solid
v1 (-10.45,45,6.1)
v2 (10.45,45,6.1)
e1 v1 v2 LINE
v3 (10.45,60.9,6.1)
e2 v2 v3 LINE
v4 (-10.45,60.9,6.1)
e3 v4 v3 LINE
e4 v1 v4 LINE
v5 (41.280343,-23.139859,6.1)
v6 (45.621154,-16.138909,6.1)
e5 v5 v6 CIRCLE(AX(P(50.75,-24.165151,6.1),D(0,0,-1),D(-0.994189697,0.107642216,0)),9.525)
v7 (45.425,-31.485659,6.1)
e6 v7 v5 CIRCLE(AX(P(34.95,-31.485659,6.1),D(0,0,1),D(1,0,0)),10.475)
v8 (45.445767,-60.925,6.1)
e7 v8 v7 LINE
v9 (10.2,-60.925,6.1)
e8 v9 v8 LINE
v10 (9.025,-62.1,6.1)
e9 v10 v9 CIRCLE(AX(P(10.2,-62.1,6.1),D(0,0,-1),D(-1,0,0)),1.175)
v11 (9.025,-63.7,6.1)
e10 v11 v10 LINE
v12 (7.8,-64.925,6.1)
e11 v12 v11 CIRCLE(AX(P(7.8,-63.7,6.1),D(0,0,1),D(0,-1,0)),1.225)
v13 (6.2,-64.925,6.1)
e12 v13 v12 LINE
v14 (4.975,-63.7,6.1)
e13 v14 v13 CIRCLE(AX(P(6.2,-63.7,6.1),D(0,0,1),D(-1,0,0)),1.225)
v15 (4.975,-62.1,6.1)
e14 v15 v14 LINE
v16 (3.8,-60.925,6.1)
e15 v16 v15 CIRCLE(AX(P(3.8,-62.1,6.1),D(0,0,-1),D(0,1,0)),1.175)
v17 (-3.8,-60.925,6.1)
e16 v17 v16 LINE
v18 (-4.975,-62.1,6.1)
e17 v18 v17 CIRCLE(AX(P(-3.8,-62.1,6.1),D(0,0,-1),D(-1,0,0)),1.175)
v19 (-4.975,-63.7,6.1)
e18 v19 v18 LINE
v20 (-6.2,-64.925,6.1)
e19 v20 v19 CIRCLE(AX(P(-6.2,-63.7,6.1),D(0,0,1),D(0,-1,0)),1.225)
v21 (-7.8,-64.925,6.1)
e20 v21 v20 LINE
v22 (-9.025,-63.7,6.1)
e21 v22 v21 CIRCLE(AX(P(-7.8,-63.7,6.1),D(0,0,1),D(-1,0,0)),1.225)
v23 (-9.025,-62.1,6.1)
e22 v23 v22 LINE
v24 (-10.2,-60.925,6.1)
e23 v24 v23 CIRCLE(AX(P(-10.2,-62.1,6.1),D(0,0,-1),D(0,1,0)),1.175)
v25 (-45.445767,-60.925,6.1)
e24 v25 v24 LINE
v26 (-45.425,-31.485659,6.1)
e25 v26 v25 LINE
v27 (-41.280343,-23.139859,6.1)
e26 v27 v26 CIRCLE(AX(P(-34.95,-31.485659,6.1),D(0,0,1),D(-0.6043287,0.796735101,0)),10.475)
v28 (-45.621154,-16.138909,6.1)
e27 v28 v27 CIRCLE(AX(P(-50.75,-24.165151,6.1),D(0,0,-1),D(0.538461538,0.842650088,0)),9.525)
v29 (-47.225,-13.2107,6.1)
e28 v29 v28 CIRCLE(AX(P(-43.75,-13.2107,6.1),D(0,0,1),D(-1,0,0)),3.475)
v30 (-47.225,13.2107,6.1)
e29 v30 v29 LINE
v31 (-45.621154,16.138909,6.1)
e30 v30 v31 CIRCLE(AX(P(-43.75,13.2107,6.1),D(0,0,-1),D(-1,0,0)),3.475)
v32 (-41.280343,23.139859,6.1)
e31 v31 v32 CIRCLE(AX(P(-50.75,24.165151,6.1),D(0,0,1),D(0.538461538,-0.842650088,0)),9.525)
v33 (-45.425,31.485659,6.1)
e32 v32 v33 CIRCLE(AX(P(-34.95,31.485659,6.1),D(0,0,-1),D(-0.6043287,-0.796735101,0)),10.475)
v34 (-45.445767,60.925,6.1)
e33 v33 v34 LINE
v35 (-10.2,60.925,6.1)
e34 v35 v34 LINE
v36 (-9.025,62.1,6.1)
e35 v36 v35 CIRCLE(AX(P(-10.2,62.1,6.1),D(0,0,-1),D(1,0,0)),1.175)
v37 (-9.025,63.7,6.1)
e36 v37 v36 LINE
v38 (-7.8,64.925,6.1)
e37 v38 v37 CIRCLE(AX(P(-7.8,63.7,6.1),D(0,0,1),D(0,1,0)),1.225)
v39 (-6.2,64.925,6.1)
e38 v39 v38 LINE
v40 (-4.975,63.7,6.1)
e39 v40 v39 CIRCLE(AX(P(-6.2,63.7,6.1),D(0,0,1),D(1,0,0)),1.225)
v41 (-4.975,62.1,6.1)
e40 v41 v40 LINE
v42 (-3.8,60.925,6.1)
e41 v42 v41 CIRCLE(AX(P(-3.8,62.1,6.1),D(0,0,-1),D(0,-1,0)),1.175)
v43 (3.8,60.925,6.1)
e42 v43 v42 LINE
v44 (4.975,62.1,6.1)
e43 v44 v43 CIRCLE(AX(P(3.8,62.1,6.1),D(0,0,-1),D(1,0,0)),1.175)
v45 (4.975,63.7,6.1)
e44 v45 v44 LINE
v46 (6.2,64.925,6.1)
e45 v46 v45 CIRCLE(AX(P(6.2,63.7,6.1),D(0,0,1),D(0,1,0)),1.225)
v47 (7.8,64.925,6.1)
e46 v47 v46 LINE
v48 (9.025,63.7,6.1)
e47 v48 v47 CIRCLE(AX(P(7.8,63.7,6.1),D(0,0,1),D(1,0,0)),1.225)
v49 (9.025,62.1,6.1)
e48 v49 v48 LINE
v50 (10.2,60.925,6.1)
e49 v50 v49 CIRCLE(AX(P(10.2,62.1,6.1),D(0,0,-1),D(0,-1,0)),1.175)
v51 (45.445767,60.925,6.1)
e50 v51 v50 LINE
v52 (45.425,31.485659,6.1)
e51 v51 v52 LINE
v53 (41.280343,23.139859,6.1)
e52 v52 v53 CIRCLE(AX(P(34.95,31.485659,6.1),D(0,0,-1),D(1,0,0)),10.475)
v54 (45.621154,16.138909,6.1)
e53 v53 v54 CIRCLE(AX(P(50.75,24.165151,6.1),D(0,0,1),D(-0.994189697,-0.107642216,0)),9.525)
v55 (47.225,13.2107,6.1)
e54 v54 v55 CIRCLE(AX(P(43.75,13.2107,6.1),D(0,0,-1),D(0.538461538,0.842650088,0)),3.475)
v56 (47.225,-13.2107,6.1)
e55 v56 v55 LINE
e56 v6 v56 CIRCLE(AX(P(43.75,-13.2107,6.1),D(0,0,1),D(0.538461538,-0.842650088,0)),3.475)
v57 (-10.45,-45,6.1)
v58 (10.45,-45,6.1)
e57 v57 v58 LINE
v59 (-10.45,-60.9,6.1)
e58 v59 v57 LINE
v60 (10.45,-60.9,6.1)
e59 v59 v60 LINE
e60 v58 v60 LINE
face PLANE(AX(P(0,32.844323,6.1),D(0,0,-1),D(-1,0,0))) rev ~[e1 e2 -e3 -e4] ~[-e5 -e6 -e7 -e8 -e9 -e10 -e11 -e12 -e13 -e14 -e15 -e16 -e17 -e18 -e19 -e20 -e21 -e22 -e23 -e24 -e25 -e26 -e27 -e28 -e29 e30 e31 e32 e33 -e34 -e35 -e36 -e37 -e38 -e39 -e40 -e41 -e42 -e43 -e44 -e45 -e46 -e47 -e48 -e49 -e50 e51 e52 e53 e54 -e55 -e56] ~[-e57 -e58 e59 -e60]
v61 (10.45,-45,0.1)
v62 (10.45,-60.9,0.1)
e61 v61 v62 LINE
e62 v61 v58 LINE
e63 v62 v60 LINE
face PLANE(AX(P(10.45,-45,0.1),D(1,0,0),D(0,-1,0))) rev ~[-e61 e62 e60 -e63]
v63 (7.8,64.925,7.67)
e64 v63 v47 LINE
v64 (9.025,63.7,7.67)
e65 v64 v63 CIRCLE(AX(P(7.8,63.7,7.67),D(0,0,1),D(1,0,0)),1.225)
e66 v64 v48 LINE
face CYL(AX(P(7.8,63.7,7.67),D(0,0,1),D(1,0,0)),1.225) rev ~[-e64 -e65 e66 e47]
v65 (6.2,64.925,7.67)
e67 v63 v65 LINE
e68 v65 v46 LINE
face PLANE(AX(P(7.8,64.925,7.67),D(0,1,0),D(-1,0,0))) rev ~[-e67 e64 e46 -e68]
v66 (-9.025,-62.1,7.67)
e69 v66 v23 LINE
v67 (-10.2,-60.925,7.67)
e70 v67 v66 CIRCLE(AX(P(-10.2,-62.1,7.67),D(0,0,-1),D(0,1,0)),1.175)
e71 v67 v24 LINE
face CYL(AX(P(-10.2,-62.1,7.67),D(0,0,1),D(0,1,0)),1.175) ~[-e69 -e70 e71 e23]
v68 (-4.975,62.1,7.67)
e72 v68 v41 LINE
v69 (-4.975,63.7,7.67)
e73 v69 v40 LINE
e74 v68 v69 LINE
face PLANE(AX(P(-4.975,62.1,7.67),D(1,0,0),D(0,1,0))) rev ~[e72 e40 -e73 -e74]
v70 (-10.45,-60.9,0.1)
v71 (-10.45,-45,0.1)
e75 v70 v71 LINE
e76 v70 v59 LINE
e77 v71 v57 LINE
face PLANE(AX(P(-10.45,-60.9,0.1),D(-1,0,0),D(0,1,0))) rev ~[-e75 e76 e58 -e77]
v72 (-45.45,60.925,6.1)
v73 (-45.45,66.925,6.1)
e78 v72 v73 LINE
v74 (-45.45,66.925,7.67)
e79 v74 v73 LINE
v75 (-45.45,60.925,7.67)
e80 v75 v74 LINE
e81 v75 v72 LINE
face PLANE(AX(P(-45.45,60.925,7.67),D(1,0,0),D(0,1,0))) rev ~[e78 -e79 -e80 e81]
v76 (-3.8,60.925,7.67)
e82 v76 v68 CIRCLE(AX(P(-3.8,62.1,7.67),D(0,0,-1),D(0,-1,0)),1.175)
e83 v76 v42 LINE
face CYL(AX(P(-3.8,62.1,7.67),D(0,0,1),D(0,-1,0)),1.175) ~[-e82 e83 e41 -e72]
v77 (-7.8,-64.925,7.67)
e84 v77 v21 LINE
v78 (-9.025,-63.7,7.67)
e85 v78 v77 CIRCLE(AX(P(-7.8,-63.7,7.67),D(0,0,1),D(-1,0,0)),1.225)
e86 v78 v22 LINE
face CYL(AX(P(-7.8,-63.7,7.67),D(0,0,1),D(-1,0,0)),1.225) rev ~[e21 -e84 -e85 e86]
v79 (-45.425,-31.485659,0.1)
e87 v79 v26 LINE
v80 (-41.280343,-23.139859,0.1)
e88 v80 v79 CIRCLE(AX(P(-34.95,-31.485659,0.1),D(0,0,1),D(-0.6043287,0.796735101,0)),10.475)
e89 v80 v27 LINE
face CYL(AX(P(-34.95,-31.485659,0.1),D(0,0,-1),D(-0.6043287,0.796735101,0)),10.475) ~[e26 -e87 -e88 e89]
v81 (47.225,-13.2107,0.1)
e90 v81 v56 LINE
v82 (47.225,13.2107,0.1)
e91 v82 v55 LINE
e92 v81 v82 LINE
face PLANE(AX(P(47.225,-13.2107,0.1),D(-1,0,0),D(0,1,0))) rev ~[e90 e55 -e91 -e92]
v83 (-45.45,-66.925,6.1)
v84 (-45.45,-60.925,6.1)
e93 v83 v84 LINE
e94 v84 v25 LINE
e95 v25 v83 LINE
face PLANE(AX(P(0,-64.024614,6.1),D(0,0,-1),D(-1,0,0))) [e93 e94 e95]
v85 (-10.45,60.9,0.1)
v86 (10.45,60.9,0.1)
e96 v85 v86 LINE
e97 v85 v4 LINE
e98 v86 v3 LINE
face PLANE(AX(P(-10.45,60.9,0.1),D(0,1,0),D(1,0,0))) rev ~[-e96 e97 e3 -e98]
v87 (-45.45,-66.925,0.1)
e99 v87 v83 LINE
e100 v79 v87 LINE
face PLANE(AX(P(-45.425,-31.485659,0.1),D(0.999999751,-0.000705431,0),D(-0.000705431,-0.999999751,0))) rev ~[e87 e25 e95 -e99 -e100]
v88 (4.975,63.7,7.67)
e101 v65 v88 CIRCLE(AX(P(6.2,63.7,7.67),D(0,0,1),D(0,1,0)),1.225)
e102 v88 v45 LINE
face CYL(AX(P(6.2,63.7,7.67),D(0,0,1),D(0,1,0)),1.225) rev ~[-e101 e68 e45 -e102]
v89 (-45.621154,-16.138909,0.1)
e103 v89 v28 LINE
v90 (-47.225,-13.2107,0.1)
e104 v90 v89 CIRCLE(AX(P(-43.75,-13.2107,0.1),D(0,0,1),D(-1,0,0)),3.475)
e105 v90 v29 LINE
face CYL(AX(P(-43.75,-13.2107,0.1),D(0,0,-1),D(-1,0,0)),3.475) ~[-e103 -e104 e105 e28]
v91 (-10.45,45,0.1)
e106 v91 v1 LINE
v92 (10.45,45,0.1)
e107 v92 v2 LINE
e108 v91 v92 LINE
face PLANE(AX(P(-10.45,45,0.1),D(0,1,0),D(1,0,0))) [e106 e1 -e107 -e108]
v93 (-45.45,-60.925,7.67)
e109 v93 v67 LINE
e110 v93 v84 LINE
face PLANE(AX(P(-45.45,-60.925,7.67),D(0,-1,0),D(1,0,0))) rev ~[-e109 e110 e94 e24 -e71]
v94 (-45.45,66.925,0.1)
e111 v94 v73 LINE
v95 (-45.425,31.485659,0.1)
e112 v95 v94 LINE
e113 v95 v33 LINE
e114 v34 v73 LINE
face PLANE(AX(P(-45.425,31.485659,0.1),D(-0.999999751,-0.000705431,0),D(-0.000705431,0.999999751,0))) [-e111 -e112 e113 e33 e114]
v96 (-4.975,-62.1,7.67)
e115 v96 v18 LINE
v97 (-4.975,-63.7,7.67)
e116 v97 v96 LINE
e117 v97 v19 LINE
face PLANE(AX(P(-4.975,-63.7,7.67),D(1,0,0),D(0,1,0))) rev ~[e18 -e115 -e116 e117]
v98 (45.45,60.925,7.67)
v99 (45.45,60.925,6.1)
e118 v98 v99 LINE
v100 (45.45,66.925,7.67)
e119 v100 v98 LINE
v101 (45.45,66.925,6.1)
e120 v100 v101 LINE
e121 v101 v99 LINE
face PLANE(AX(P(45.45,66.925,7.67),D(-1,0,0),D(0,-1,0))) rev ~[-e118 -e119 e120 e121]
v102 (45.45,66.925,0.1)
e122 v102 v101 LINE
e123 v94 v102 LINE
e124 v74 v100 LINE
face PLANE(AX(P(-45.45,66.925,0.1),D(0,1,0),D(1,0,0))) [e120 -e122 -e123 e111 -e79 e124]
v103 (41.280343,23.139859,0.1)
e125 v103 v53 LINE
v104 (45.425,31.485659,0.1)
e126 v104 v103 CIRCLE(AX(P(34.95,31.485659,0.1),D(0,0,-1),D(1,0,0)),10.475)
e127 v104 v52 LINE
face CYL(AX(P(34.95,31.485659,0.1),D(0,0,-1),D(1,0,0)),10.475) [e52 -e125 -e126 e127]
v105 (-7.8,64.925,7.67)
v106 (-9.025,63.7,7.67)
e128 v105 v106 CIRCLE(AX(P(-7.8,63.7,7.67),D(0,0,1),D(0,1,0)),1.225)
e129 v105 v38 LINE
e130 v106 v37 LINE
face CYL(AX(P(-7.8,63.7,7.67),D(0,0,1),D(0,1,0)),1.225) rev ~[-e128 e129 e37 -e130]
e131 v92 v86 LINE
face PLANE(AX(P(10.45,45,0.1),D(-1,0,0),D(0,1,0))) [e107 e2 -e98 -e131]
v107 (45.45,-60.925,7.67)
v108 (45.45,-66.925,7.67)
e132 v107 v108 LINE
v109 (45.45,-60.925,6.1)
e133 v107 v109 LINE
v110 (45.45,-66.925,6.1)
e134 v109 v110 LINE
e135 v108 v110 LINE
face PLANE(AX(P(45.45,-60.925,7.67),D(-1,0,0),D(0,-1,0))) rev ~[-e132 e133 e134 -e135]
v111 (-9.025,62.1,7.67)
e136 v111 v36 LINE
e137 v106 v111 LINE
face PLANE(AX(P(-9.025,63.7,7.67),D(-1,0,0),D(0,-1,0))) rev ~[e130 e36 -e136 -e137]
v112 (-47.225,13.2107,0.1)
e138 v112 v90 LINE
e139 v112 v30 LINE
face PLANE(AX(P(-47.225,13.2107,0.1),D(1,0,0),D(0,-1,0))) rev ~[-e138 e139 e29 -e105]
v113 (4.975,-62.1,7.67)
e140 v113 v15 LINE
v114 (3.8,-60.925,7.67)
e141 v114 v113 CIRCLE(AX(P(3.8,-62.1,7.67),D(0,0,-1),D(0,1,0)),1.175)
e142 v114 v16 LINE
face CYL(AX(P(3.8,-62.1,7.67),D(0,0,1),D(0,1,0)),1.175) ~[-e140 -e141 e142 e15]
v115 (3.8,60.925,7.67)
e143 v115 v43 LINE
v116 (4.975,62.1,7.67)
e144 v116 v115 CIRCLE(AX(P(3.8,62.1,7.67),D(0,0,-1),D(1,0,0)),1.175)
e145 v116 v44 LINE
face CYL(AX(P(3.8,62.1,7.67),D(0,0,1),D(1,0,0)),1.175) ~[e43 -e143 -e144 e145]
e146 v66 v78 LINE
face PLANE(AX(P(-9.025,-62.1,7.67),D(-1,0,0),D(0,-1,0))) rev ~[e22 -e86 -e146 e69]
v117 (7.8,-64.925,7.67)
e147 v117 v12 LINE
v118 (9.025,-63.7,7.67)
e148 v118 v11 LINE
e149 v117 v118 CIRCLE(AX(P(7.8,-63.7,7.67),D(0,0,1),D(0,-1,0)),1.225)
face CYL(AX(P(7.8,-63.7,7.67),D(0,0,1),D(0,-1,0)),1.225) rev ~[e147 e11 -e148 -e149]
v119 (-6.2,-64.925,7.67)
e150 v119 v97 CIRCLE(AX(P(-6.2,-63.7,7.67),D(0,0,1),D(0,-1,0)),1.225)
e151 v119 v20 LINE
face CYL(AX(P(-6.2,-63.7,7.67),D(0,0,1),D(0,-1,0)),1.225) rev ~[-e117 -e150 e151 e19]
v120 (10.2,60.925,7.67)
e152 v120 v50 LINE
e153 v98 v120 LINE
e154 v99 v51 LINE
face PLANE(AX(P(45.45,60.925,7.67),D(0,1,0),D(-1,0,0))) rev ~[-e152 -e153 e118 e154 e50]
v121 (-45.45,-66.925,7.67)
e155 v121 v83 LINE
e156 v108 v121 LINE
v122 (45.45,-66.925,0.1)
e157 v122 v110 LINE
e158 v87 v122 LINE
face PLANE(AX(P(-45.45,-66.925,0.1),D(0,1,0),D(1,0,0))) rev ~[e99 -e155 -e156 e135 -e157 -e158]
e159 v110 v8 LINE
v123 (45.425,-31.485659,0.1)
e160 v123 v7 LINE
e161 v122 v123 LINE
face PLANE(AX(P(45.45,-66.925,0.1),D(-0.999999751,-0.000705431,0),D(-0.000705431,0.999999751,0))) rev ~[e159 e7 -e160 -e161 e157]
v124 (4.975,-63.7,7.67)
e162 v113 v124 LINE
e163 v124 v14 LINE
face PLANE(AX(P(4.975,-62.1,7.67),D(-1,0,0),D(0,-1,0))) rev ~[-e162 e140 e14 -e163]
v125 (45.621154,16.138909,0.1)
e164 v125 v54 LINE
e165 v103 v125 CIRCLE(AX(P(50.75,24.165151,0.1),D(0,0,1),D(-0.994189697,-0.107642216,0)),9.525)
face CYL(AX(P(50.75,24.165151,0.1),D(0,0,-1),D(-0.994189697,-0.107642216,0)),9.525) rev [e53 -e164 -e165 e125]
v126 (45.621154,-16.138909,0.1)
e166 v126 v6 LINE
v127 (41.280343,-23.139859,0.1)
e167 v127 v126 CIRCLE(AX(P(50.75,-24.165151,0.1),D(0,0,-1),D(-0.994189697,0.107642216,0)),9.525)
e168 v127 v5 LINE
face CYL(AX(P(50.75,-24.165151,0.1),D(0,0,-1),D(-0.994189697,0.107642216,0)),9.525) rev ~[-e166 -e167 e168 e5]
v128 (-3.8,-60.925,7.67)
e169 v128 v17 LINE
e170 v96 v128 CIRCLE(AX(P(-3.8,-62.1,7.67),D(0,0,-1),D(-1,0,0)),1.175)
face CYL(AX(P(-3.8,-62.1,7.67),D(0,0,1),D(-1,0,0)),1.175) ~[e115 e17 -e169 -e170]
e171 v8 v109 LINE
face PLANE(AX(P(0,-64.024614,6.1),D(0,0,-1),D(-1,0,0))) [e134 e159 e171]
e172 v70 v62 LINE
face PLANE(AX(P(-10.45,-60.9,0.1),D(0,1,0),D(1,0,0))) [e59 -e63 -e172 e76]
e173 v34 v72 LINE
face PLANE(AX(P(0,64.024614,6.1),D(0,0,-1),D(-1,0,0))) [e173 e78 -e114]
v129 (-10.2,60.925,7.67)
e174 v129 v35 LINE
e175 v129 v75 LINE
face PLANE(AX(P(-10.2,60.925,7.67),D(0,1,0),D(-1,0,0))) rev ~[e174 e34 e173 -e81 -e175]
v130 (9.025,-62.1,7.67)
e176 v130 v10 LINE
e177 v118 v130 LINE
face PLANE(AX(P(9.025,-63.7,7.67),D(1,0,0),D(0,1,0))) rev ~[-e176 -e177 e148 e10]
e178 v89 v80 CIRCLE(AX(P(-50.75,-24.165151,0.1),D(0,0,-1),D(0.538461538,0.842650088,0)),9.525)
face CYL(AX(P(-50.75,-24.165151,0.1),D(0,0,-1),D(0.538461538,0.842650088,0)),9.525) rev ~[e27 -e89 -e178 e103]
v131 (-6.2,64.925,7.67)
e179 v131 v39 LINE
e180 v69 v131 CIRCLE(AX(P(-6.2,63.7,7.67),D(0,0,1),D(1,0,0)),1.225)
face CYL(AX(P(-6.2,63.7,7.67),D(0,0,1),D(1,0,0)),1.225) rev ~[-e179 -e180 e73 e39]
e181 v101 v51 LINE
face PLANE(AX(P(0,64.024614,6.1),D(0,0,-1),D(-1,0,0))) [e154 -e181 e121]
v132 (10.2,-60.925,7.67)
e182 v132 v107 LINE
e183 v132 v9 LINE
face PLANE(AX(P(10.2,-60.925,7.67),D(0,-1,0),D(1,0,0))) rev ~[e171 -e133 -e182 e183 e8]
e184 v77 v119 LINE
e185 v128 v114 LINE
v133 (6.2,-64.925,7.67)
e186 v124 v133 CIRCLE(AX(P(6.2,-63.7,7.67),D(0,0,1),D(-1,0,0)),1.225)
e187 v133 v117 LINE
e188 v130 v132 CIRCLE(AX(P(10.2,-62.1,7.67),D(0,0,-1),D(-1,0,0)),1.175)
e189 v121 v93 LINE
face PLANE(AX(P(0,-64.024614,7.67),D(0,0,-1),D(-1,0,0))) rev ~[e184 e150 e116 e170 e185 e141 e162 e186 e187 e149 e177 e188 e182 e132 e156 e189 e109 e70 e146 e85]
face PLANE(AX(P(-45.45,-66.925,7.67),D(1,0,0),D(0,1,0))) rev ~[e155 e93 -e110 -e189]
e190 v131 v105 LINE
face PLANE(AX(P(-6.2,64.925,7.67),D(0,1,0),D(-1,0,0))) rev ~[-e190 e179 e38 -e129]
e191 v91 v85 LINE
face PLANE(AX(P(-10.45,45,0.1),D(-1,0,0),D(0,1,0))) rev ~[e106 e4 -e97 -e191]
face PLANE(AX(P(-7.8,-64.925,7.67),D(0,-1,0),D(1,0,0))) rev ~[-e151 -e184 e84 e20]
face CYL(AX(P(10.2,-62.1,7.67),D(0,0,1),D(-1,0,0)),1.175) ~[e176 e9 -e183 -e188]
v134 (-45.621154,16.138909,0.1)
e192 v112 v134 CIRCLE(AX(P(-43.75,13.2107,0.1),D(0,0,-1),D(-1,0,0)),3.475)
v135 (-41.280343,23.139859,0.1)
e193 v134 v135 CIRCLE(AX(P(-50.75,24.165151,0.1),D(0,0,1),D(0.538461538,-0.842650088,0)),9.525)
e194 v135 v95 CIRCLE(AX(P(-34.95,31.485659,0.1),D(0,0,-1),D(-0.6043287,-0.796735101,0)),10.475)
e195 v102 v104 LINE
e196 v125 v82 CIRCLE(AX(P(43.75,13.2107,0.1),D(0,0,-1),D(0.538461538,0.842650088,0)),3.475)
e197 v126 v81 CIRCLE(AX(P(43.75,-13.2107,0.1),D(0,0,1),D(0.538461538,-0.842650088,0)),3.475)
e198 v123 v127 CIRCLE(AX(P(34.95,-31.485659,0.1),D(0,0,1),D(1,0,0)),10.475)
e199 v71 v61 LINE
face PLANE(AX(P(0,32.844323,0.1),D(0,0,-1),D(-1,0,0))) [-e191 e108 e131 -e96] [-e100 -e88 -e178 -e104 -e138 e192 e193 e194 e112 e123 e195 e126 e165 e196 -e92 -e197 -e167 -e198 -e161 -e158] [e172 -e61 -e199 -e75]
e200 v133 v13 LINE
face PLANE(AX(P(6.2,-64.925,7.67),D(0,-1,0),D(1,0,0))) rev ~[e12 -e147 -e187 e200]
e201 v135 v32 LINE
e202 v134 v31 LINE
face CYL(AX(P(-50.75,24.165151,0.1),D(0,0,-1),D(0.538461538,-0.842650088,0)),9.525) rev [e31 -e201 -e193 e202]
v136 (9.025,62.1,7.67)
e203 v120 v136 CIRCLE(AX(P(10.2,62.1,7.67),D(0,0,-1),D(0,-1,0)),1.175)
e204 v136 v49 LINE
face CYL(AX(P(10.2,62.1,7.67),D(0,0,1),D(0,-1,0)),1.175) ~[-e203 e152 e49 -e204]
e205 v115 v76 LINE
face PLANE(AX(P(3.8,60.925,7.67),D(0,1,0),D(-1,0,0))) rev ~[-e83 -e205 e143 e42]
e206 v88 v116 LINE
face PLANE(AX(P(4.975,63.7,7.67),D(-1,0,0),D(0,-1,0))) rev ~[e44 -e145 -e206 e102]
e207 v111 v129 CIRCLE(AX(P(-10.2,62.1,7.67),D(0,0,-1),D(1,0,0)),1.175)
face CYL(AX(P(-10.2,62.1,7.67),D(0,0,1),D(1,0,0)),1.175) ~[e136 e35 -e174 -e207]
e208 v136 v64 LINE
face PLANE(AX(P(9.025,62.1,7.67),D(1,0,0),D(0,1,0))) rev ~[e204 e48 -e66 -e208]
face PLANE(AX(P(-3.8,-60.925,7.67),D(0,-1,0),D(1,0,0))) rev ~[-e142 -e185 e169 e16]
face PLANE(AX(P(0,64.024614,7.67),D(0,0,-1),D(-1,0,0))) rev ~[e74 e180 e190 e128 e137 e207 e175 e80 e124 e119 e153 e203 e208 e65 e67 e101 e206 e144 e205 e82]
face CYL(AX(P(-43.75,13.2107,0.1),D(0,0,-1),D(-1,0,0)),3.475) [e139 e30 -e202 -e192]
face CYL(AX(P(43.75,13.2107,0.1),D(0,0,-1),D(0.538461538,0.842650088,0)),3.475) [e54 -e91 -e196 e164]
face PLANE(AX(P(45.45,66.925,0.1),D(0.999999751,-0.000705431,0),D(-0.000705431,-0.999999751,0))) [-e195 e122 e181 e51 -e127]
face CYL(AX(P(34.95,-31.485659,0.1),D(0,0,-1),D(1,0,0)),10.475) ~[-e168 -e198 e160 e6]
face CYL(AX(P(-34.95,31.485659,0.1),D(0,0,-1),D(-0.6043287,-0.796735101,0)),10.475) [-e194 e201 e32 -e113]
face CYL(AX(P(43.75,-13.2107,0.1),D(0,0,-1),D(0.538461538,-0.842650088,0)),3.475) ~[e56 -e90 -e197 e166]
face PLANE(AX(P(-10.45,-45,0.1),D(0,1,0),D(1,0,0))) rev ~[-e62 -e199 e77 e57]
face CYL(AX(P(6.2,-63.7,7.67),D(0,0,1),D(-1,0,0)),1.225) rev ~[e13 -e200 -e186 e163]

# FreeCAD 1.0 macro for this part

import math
import FreeCAD as App
import Part
import Sketcher
Q = App.Units.Quantity


def add_polygon(sketch, points):
    """Adds a closed chain of lines whose ends are joined by coincident constraints."""
    first, n = sketch.GeometryCount, len(points)
    for a, b in zip(points, points[1:] + points[:1]):
        sketch.addGeometry(Part.LineSegment(App.Vector(*a, 0), App.Vector(*b, 0)), False)
    for i in range(n):
        sketch.addConstraint(Sketcher.Constraint("Coincident", first + i, 2, first + (i + 1) % n, 1))

doc = App.newDocument("Part")
params = doc.addObject("Spreadsheet::Sheet", "Params")
for row, (alias, value) in enumerate([
    ("sketch1_height", "6 mm"),
    ("sketch1_width", "1.6 mm"),
    ("sketch1_width2", "7.6 mm"),
    ("sketch1_width3", "90.9 mm"),
    ("pad1_length", "1.57 mm"),
    ("sketch2_height", "6 mm"),
    ("sketch2_width", "1.6 mm"),
    ("sketch2_width2", "7.6 mm"),
    ("sketch2_width3", "90.9 mm"),
    ("pad2_length", "1.57 mm"),
    ("sketch3_width", "90.9 mm"),
    ("sketch3_width2", "20.9 mm"),
    ("sketch3_height", "15.9 mm"),
    ("pad3_length", "6 mm"),
], start=1):
    params.set(f"A{row}", alias)
    params.set(f"B{row}", "=" + value)
    params.setAlias(f"B{row}", alias)

body = doc.addObject("PartDesign::Body", "Body")

# Sketch on XY plane
sketch1 = body.newObject("Sketcher::SketchObject", "Sketch")
sketch1.AttachmentSupport = (doc.getObject("XY_Plane"), [""])
sketch1.MapMode = "FlatFace"
sketch1.AttachmentOffset = App.Placement(App.Vector(0, 0, 7.67), App.Rotation())
sketch1.addGeometry(Part.LineSegment(App.Vector(-45.5, 60.9, 0), App.Vector(-10.2, 60.9, 0)), False)
sketch1.addGeometry(Part.ArcOfCircle(Part.Circle(App.Vector(-10.2, 62.1, 0), App.Vector(0, 0, 1), 1.2), math.radians(-90), math.radians(0)), False)
sketch1.addGeometry(Part.LineSegment(App.Vector(-9, 62.1, 0), App.Vector(-9, 63.7, 0)), False)
sketch1.addGeometry(Part.ArcOfCircle(Part.Circle(App.Vector(-7.8, 63.7, 0), App.Vector(0, 0, 1), 1.2), math.radians(90), math.radians(180)), False)
sketch1.addGeometry(Part.LineSegment(App.Vector(-7.8, 64.9, 0), App.Vector(-6.2, 64.9, 0)), False)
sketch1.addGeometry(Part.ArcOfCircle(Part.Circle(App.Vector(-6.2, 63.7, 0), App.Vector(0, 0, 1), 1.2), math.radians(0), math.radians(90)), False)
sketch1.addGeometry(Part.LineSegment(App.Vector(-5, 63.7, 0), App.Vector(-5, 62.1, 0)), False)
sketch1.addGeometry(Part.ArcOfCircle(Part.Circle(App.Vector(-3.8, 62.1, 0), App.Vector(0, 0, 1), 1.2), math.radians(180), math.radians(270)), False)
sketch1.addGeometry(Part.LineSegment(App.Vector(-3.8, 60.9, 0), App.Vector(3.8, 60.9, 0)), False)
sketch1.addGeometry(Part.ArcOfCircle(Part.Circle(App.Vector(3.8, 62.1, 0), App.Vector(0, 0, 1), 1.2), math.radians(-90), math.radians(0)), False)
sketch1.addGeometry(Part.LineSegment(App.Vector(5, 62.1, 0), App.Vector(5, 63.7, 0)), False)
sketch1.addGeometry(Part.ArcOfCircle(Part.Circle(App.Vector(6.2, 63.7, 0), App.Vector(0, 0, 1), 1.2), math.radians(90), math.radians(180)), False)
sketch1.addGeometry(Part.LineSegment(App.Vector(6.2, 64.9, 0), App.Vector(7.8, 64.9, 0)), False)
sketch1.addGeometry(Part.ArcOfCircle(Part.Circle(App.Vector(7.8, 63.7, 0), App.Vector(0, 0, 1), 1.2), math.radians(0), math.radians(90)), False)
sketch1.addGeometry(Part.LineSegment(App.Vector(9, 63.7, 0), App.Vector(9, 62.1, 0)), False)
sketch1.addGeometry(Part.ArcOfCircle(Part.Circle(App.Vector(10.2, 62.1, 0), App.Vector(0, 0, 1), 1.2), math.radians(180), math.radians(270)), False)
sketch1.addGeometry(Part.LineSegment(App.Vector(10.2, 60.9, 0), App.Vector(45.5, 60.9, 0)), False)
sketch1.addGeometry(Part.LineSegment(App.Vector(45.5, 60.9, 0), App.Vector(45.5, 66.9, 0)), False)
sketch1.addGeometry(Part.LineSegment(App.Vector(45.5, 66.9, 0), App.Vector(-45.5, 66.9, 0)), False)
sketch1.addGeometry(Part.LineSegment(App.Vector(-45.5, 66.9, 0), App.Vector(-45.5, 60.9, 0)), False)
sketch1.addConstraint(Sketcher.Constraint("Tangent", 0, 2, 1, 1))
sketch1.addConstraint(Sketcher.Constraint("Tangent", 1, 2, 2, 1))
sketch1.addConstraint(Sketcher.Constraint("Tangent", 2, 2, 3, 2))
sketch1.addConstraint(Sketcher.Constraint("Tangent", 3, 1, 4, 1))
sketch1.addConstraint(Sketcher.Constraint("Tangent", 4, 2, 5, 2))
sketch1.addConstraint(Sketcher.Constraint("Tangent", 5, 1, 6, 1))
sketch1.addConstraint(Sketcher.Constraint("Tangent", 6, 2, 7, 1))
sketch1.addConstraint(Sketcher.Constraint("Tangent", 7, 2, 8, 1))
sketch1.addConstraint(Sketcher.Constraint("Tangent", 8, 2, 9, 1))
sketch1.addConstraint(Sketcher.Constraint("Tangent", 9, 2, 10, 1))
sketch1.addConstraint(Sketcher.Constraint("Tangent", 10, 2, 11, 2))
sketch1.addConstraint(Sketcher.Constraint("Tangent", 11, 1, 12, 1))
sketch1.addConstraint(Sketcher.Constraint("Tangent", 12, 2, 13, 2))
sketch1.addConstraint(Sketcher.Constraint("Tangent", 13, 1, 14, 1))
sketch1.addConstraint(Sketcher.Constraint("Tangent", 14, 2, 15, 1))
sketch1.addConstraint(Sketcher.Constraint("Tangent", 15, 2, 16, 1))
sketch1.addConstraint(Sketcher.Constraint("Coincident", 16, 2, 17, 1))
sketch1.addConstraint(Sketcher.Constraint("Coincident", 17, 2, 18, 1))
sketch1.addConstraint(Sketcher.Constraint("Coincident", 18, 2, 19, 1))
sketch1.addConstraint(Sketcher.Constraint("Coincident", 19, 2, 0, 1))
sketch1.addConstraint(Sketcher.Constraint("Horizontal", 0))
sketch1.addConstraint(Sketcher.Constraint("Vertical", 2))
sketch1.addConstraint(Sketcher.Constraint("Horizontal", 4))
sketch1.addConstraint(Sketcher.Constraint("Vertical", 6))
sketch1.addConstraint(Sketcher.Constraint("Horizontal", 8))
sketch1.addConstraint(Sketcher.Constraint("Vertical", 10))
sketch1.addConstraint(Sketcher.Constraint("Horizontal", 12))
sketch1.addConstraint(Sketcher.Constraint("Vertical", 14))
sketch1.addConstraint(Sketcher.Constraint("Horizontal", 16))
sketch1.addConstraint(Sketcher.Constraint("Vertical", 17))
sketch1.addConstraint(Sketcher.Constraint("Horizontal", 18))
sketch1.addConstraint(Sketcher.Constraint("Vertical", 19))
sketch1.addConstraint(Sketcher.Constraint("Equal", 3, 5))
sketch1.addConstraint(Sketcher.Constraint("Equal", 1, 7))
sketch1.addConstraint(Sketcher.Constraint("Equal", 7, 9))
sketch1.addConstraint(Sketcher.Constraint("Equal", 5, 11))
sketch1.addConstraint(Sketcher.Constraint("Equal", 11, 13))
sketch1.addConstraint(Sketcher.Constraint("Equal", 9, 15))
sketch1.addConstraint(Sketcher.Constraint("Symmetric", 5, 3, 11, 3, -2))
sketch1.addConstraint(Sketcher.Constraint("Symmetric", 1, 3, 15, 3, -2))
sketch1.addConstraint(Sketcher.Constraint("Horizontal", 1, 3, 7, 3))
sketch1.addConstraint(Sketcher.Constraint("Equal", 0, 16))
sketch1.addConstraint(Sketcher.Constraint("Equal", 12, 2))
sketch1.addConstraint(Sketcher.Constraint("DistanceY", 17, 1, 17, 2, Q("6 mm")))
sketch1.addConstraint(Sketcher.Constraint("DistanceX", 4, 1, 4, 2, Q("1.6 mm")))
sketch1.addConstraint(Sketcher.Constraint("DistanceX", 8, 1, 8, 2, Q("7.6 mm")))
sketch1.addConstraint(Sketcher.Constraint("DistanceX", 18, 2, 18, 1, Q("90.9 mm")))
sketch1.addConstraint(Sketcher.Constraint("Radius", 1, Q("1.175 mm")))
sketch1.addConstraint(Sketcher.Constraint("Radius", 3, Q("1.225 mm")))
sketch1.addConstraint(Sketcher.Constraint("DistanceY", -1, 1, 1, 3, Q("62.1 mm")))
sketch1.setExpression("Constraints[43]", "Params.sketch1_height")
sketch1.setExpression("Constraints[44]", "Params.sketch1_width")
sketch1.setExpression("Constraints[45]", "Params.sketch1_width2")
sketch1.setExpression("Constraints[46]", "Params.sketch1_width3")
pad1 = body.newObject("PartDesign::Pad", "Pad")
pad1.Profile = sketch1
pad1.setExpression("Length", "Params.pad1_length")
pad1.Reversed = True
body2 = doc.addObject("PartDesign::Body", "Body001")

# Sketch on XY plane
sketch2 = body2.newObject("Sketcher::SketchObject", "Sketch001")
sketch2.AttachmentSupport = (doc.getObject("XY_Plane001"), [""])
sketch2.MapMode = "FlatFace"
sketch2.AttachmentOffset = App.Placement(App.Vector(0, 0, 7.67), App.Rotation())
sketch2.addGeometry(Part.LineSegment(App.Vector(45.5, -60.9, 0), App.Vector(10.2, -60.9, 0)), False)
sketch2.addGeometry(Part.ArcOfCircle(Part.Circle(App.Vector(10.2, -62.1, 0), App.Vector(0, 0, 1), 1.2), math.radians(90), math.radians(180)), False)
sketch2.addGeometry(Part.LineSegment(App.Vector(9, -62.1, 0), App.Vector(9, -63.7, 0)), False)
sketch2.addGeometry(Part.ArcOfCircle(Part.Circle(App.Vector(7.8, -63.7, 0), App.Vector(0, 0, 1), 1.2), math.radians(-90), math.radians(0)), False)
sketch2.addGeometry(Part.LineSegment(App.Vector(7.8, -64.9, 0), App.Vector(6.2, -64.9, 0)), False)
sketch2.addGeometry(Part.ArcOfCircle(Part.Circle(App.Vector(6.2, -63.7, 0), App.Vector(0, 0, 1), 1.2), math.radians(180), math.radians(270)), False)
sketch2.addGeometry(Part.LineSegment(App.Vector(5, -63.7, 0), App.Vector(5, -62.1, 0)), False)
sketch2.addGeometry(Part.ArcOfCircle(Part.Circle(App.Vector(3.8, -62.1, 0), App.Vector(0, 0, 1), 1.2), math.radians(0), math.radians(90)), False)
sketch2.addGeometry(Part.LineSegment(App.Vector(3.8, -60.9, 0), App.Vector(-3.8, -60.9, 0)), False)
sketch2.addGeometry(Part.ArcOfCircle(Part.Circle(App.Vector(-3.8, -62.1, 0), App.Vector(0, 0, 1), 1.2), math.radians(90), math.radians(180)), False)
sketch2.addGeometry(Part.LineSegment(App.Vector(-5, -62.1, 0), App.Vector(-5, -63.7, 0)), False)
sketch2.addGeometry(Part.ArcOfCircle(Part.Circle(App.Vector(-6.2, -63.7, 0), App.Vector(0, 0, 1), 1.2), math.radians(-90), math.radians(0)), False)
sketch2.addGeometry(Part.LineSegment(App.Vector(-6.2, -64.9, 0), App.Vector(-7.8, -64.9, 0)), False)
sketch2.addGeometry(Part.ArcOfCircle(Part.Circle(App.Vector(-7.8, -63.7, 0), App.Vector(0, 0, 1), 1.2), math.radians(180), math.radians(270)), False)
sketch2.addGeometry(Part.LineSegment(App.Vector(-9, -63.7, 0), App.Vector(-9, -62.1, 0)), False)
sketch2.addGeometry(Part.ArcOfCircle(Part.Circle(App.Vector(-10.2, -62.1, 0), App.Vector(0, 0, 1), 1.2), math.radians(0), math.radians(90)), False)
sketch2.addGeometry(Part.LineSegment(App.Vector(-10.2, -60.9, 0), App.Vector(-45.5, -60.9, 0)), False)
sketch2.addGeometry(Part.LineSegment(App.Vector(-45.5, -60.9, 0), App.Vector(-45.5, -66.9, 0)), False)
sketch2.addGeometry(Part.LineSegment(App.Vector(-45.5, -66.9, 0), App.Vector(45.5, -66.9, 0)), False)
sketch2.addGeometry(Part.LineSegment(App.Vector(45.5, -66.9, 0), App.Vector(45.5, -60.9, 0)), False)
sketch2.addConstraint(Sketcher.Constraint("Tangent", 0, 2, 1, 1))
sketch2.addConstraint(Sketcher.Constraint("Tangent", 1, 2, 2, 1))
sketch2.addConstraint(Sketcher.Constraint("Tangent", 2, 2, 3, 2))
sketch2.addConstraint(Sketcher.Constraint("Tangent", 3, 1, 4, 1))
sketch2.addConstraint(Sketcher.Constraint("Tangent", 4, 2, 5, 2))
sketch2.addConstraint(Sketcher.Constraint("Tangent", 5, 1, 6, 1))
sketch2.addConstraint(Sketcher.Constraint("Tangent", 6, 2, 7, 1))
sketch2.addConstraint(Sketcher.Constraint("Tangent", 7, 2, 8, 1))
sketch2.addConstraint(Sketcher.Constraint("Tangent", 8, 2, 9, 1))
sketch2.addConstraint(Sketcher.Constraint("Tangent", 9, 2, 10, 1))
sketch2.addConstraint(Sketcher.Constraint("Tangent", 10, 2, 11, 2))
sketch2.addConstraint(Sketcher.Constraint("Tangent", 11, 1, 12, 1))
sketch2.addConstraint(Sketcher.Constraint("Tangent", 12, 2, 13, 2))
sketch2.addConstraint(Sketcher.Constraint("Tangent", 13, 1, 14, 1))
sketch2.addConstraint(Sketcher.Constraint("Tangent", 14, 2, 15, 1))
sketch2.addConstraint(Sketcher.Constraint("Tangent", 15, 2, 16, 1))
sketch2.addConstraint(Sketcher.Constraint("Coincident", 16, 2, 17, 1))
sketch2.addConstraint(Sketcher.Constraint("Coincident", 17, 2, 18, 1))
sketch2.addConstraint(Sketcher.Constraint("Coincident", 18, 2, 19, 1))
sketch2.addConstraint(Sketcher.Constraint("Coincident", 19, 2, 0, 1))
sketch2.addConstraint(Sketcher.Constraint("Horizontal", 0))
sketch2.addConstraint(Sketcher.Constraint("Vertical", 2))
sketch2.addConstraint(Sketcher.Constraint("Horizontal", 4))
sketch2.addConstraint(Sketcher.Constraint("Vertical", 6))
sketch2.addConstraint(Sketcher.Constraint("Horizontal", 8))
sketch2.addConstraint(Sketcher.Constraint("Vertical", 10))
sketch2.addConstraint(Sketcher.Constraint("Horizontal", 12))
sketch2.addConstraint(Sketcher.Constraint("Vertical", 14))
sketch2.addConstraint(Sketcher.Constraint("Horizontal", 16))
sketch2.addConstraint(Sketcher.Constraint("Vertical", 17))
sketch2.addConstraint(Sketcher.Constraint("Horizontal", 18))
sketch2.addConstraint(Sketcher.Constraint("Vertical", 19))
sketch2.addConstraint(Sketcher.Constraint("Equal", 3, 5))
sketch2.addConstraint(Sketcher.Constraint("Equal", 1, 7))
sketch2.addConstraint(Sketcher.Constraint("Equal", 7, 9))
sketch2.addConstraint(Sketcher.Constraint("Equal", 5, 11))
sketch2.addConstraint(Sketcher.Constraint("Equal", 11, 13))
sketch2.addConstraint(Sketcher.Constraint("Equal", 9, 15))
sketch2.addConstraint(Sketcher.Constraint("Symmetric", 5, 3, 11, 3, -2))
sketch2.addConstraint(Sketcher.Constraint("Symmetric", 1, 3, 15, 3, -2))
sketch2.addConstraint(Sketcher.Constraint("Horizontal", 1, 3, 7, 3))
sketch2.addConstraint(Sketcher.Constraint("Equal", 0, 16))
sketch2.addConstraint(Sketcher.Constraint("Equal", 12, 2))
sketch2.addConstraint(Sketcher.Constraint("DistanceY", 17, 2, 17, 1, Q("6 mm")))
sketch2.addConstraint(Sketcher.Constraint("DistanceX", 4, 2, 4, 1, Q("1.6 mm")))
sketch2.addConstraint(Sketcher.Constraint("DistanceX", 8, 2, 8, 1, Q("7.6 mm")))
sketch2.addConstraint(Sketcher.Constraint("DistanceX", 18, 1, 18, 2, Q("90.9 mm")))
sketch2.addConstraint(Sketcher.Constraint("Radius", 1, Q("1.175 mm")))
sketch2.addConstraint(Sketcher.Constraint("Radius", 3, Q("1.225 mm")))
sketch2.addConstraint(Sketcher.Constraint("DistanceY", 1, 3, -1, 1, Q("62.1 mm")))
sketch2.setExpression("Constraints[43]", "Params.sketch2_height")
sketch2.setExpression("Constraints[44]", "Params.sketch2_width")
sketch2.setExpression("Constraints[45]", "Params.sketch2_width2")
sketch2.setExpression("Constraints[46]", "Params.sketch2_width3")
pad2 = body2.newObject("PartDesign::Pad", "Pad001")
pad2.Profile = sketch2
pad2.setExpression("Length", "Params.pad2_length")
pad2.Reversed = True
body.AllowCompound = True
doc.recompute()

boolean = body.newObject("PartDesign::Boolean", "Boolean")
boolean.Type = "Fuse"
boolean.addObjects([body2])

# Sketch on XY plane
sketch3 = body.newObject("Sketcher::SketchObject", "Sketch002")
sketch3.AttachmentSupport = (doc.getObject("XY_Plane"), [""])
sketch3.MapMode = "FlatFace"
sketch3.AttachmentOffset = App.Placement(App.Vector(0, 0, 0.1), App.Rotation())
sketch3.addGeometry(Part.ArcOfCircle(Part.Circle(App.Vector(-50.7, 24.2, 0), App.Vector(0, 0, 1), 9.5), math.radians(-57), math.radians(-6)), False)  # 0
sketch3.addGeometry(Part.ArcOfCircle(Part.Circle(App.Vector(-43.8, 13.2, 0), App.Vector(0, 0, 1), 3.5), math.radians(123), math.radians(180)), False)  # 1
sketch3.addGeometry(Part.LineSegment(App.Vector(-47.2, 13.2, 0), App.Vector(-47.2, -13.2, 0)), False)  # 2
sketch3.addGeometry(Part.ArcOfCircle(Part.Circle(App.Vector(-43.8, -13.2, 0), App.Vector(0, 0, 1), 3.5), math.radians(-180), math.radians(-123)), False)  # 3
sketch3.addGeometry(Part.ArcOfCircle(Part.Circle(App.Vector(-50.7, -24.2, 0), App.Vector(0, 0, 1), 9.5), math.radians(6), math.radians(57)), False)  # 4
sketch3.addGeometry(Part.ArcOfCircle(Part.Circle(App.Vector(-35, -31.5, 0), App.Vector(0, 0, 1), 10.5), math.radians(127), math.radians(180)), False)  # 5
sketch3.addGeometry(Part.LineSegment(App.Vector(-45.4, -31.5, 0), App.Vector(-45.5, -66.9, 0)), False)  # 6
sketch3.addGeometry(Part.LineSegment(App.Vector(-45.5, -66.9, 0), App.Vector(45.5, -66.9, 0)), False)  # 7
sketch3.addGeometry(Part.LineSegment(App.Vector(45.5, -66.9, 0), App.Vector(45.4, -31.5, 0)), False)  # 8
sketch3.addGeometry(Part.ArcOfCircle(Part.Circle(App.Vector(35, -31.5, 0), App.Vector(0, 0, 1), 10.5), math.radians(0), math.radians(53)), False)  # 9
sketch3.addGeometry(Part.ArcOfCircle(Part.Circle(App.Vector(50.7, -24.2, 0), App.Vector(0, 0, 1), 9.5), math.radians(123), math.radians(174)), False)  # 10
sketch3.addGeometry(Part.ArcOfCircle(Part.Circle(App.Vector(43.8, -13.2, 0), App.Vector(0, 0, 1), 3.5), math.radians(-57), math.radians(0)), False)  # 11
sketch3.addGeometry(Part.LineSegment(App.Vector(47.2, -13.2, 0), App.Vector(47.2, 13.2, 0)), False)  # 12
sketch3.addGeometry(Part.ArcOfCircle(Part.Circle(App.Vector(43.8, 13.2, 0), App.Vector(0, 0, 1), 3.5), math.radians(0), math.radians(57)), False)  # 13
sketch3.addGeometry(Part.ArcOfCircle(Part.Circle(App.Vector(50.7, 24.2, 0), App.Vector(0, 0, 1), 9.5), math.radians(-174), math.radians(-123)), False)  # 14
sketch3.addGeometry(Part.ArcOfCircle(Part.Circle(App.Vector(35, 31.5, 0), App.Vector(0, 0, 1), 10.5), math.radians(-53), math.radians(0)), False)  # 15
sketch3.addGeometry(Part.LineSegment(App.Vector(45.4, 31.5, 0), App.Vector(45.5, 66.9, 0)), False)  # 16
sketch3.addGeometry(Part.LineSegment(App.Vector(45.5, 66.9, 0), App.Vector(-45.5, 66.9, 0)), False)  # 17
sketch3.addGeometry(Part.LineSegment(App.Vector(-45.5, 66.9, 0), App.Vector(-45.4, 31.5, 0)), False)  # 18
sketch3.addGeometry(Part.ArcOfCircle(Part.Circle(App.Vector(-35, 31.5, 0), App.Vector(0, 0, 1), 10.5), math.radians(180), math.radians(233)), False)  # 19
add_polygon(sketch3, [(10.4, -45), (10.4, -60.9), (-10.4, -60.9), (-10.4, -45)])  # lines 20-23
add_polygon(sketch3, [(-10.4, 45), (-10.4, 60.9), (10.4, 60.9), (10.4, 45)])  # lines 24-27
sketch3.addConstraint(Sketcher.Constraint("Tangent", 0, 1, 1, 1))
sketch3.addConstraint(Sketcher.Constraint("Tangent", 1, 2, 2, 1))
sketch3.addConstraint(Sketcher.Constraint("Tangent", 2, 2, 3, 1))
sketch3.addConstraint(Sketcher.Constraint("Tangent", 3, 2, 4, 2))
sketch3.addConstraint(Sketcher.Constraint("Coincident", 4, 1, 5, 1))
sketch3.addConstraint(Sketcher.Constraint("Coincident", 5, 2, 6, 1))
sketch3.addConstraint(Sketcher.Constraint("Coincident", 6, 2, 7, 1))
sketch3.addConstraint(Sketcher.Constraint("Coincident", 7, 2, 8, 1))
sketch3.addConstraint(Sketcher.Constraint("Coincident", 8, 2, 9, 1))
sketch3.addConstraint(Sketcher.Constraint("Coincident", 9, 2, 10, 2))
sketch3.addConstraint(Sketcher.Constraint("Tangent", 10, 1, 11, 1))
sketch3.addConstraint(Sketcher.Constraint("Tangent", 11, 2, 12, 1))
sketch3.addConstraint(Sketcher.Constraint("Tangent", 12, 2, 13, 1))
sketch3.addConstraint(Sketcher.Constraint("Tangent", 13, 2, 14, 2))
sketch3.addConstraint(Sketcher.Constraint("Coincident", 14, 1, 15, 1))
sketch3.addConstraint(Sketcher.Constraint("Coincident", 15, 2, 16, 1))
sketch3.addConstraint(Sketcher.Constraint("Coincident", 16, 2, 17, 1))
sketch3.addConstraint(Sketcher.Constraint("Coincident", 17, 2, 18, 1))
sketch3.addConstraint(Sketcher.Constraint("Coincident", 18, 2, 19, 1))
sketch3.addConstraint(Sketcher.Constraint("Coincident", 19, 2, 0, 2))
sketch3.addConstraint(Sketcher.Constraint("Vertical", 2))
sketch3.addConstraint(Sketcher.Constraint("Horizontal", 7))
sketch3.addConstraint(Sketcher.Constraint("Vertical", 12))
sketch3.addConstraint(Sketcher.Constraint("Horizontal", 17))
sketch3.addConstraint(Sketcher.Constraint("Vertical", 20))
sketch3.addConstraint(Sketcher.Constraint("Horizontal", 21))
sketch3.addConstraint(Sketcher.Constraint("Vertical", 22))
sketch3.addConstraint(Sketcher.Constraint("Horizontal", 23))
sketch3.addConstraint(Sketcher.Constraint("Vertical", 24))
sketch3.addConstraint(Sketcher.Constraint("Horizontal", 25))
sketch3.addConstraint(Sketcher.Constraint("Vertical", 26))
sketch3.addConstraint(Sketcher.Constraint("Horizontal", 27))
sketch3.addConstraint(Sketcher.Constraint("Equal", 1, 3))
sketch3.addConstraint(Sketcher.Constraint("Equal", 0, 4))
sketch3.addConstraint(Sketcher.Constraint("Equal", 5, 9))
sketch3.addConstraint(Sketcher.Constraint("Equal", 4, 10))
sketch3.addConstraint(Sketcher.Constraint("Equal", 3, 11))
sketch3.addConstraint(Sketcher.Constraint("Equal", 11, 13))
sketch3.addConstraint(Sketcher.Constraint("Equal", 10, 14))
sketch3.addConstraint(Sketcher.Constraint("Equal", 9, 15))
sketch3.addConstraint(Sketcher.Constraint("Equal", 15, 19))
sketch3.addConstraint(Sketcher.Constraint("Symmetric", 0, 3, 10, 3, -1, 1))
sketch3.addConstraint(Sketcher.Constraint("Symmetric", 3, 3, 13, 3, -1, 1))
sketch3.addConstraint(Sketcher.Constraint("Symmetric", 5, 3, 15, 3, -1, 1))
sketch3.addConstraint(Sketcher.Constraint("Symmetric", 9, 3, 19, 3, -1, 1))
sketch3.addConstraint(Sketcher.Constraint("Symmetric", 6, 2, 16, 2, -1, 1))
sketch3.addConstraint(Sketcher.Constraint("Symmetric", 20, 2, 24, 2, -1, 1))
sketch3.addConstraint(Sketcher.Constraint("Symmetric", 22, 2, 26, 2, -1, 1))
sketch3.addConstraint(Sketcher.Constraint("Symmetric", 5, 3, 9, 3, -2))
sketch3.addConstraint(Sketcher.Constraint("Symmetric", 4, 3, 10, 3, -2))
sketch3.addConstraint(Sketcher.Constraint("Parallel", 8, 18))
sketch3.addConstraint(Sketcher.Constraint("Horizontal", 0, 3, 14, 3))
sketch3.addConstraint(Sketcher.Constraint("Horizontal", 9, 3, 5, 2))
sketch3.addConstraint(Sketcher.Constraint("Horizontal", 5, 2, 8, 2))
sketch3.addConstraint(Sketcher.Constraint("Horizontal", 19, 3, 15, 2))
sketch3.addConstraint(Sketcher.Constraint("Horizontal", 15, 2, 18, 2))
sketch3.addConstraint(Sketcher.Constraint("Vertical", 7, 2, 16, 2))
sketch3.addConstraint(Sketcher.Constraint("Vertical", 22, 2, 24, 2))
sketch3.addConstraint(Sketcher.Constraint("DistanceX", 7, 1, 7, 2, Q("90.9 mm")))
sketch3.addConstraint(Sketcher.Constraint("DistanceX", 21, 2, 21, 1, Q("20.9 mm")))
sketch3.addConstraint(Sketcher.Constraint("DistanceY", 20, 2, 20, 1, Q("15.9 mm")))
sketch3.addConstraint(Sketcher.Constraint("DistanceY", 22, 2, -1, 1, Q("45 mm")))
sketch3.addConstraint(Sketcher.Constraint("Radius", 0, Q("9.525 mm")))
sketch3.addConstraint(Sketcher.Constraint("Radius", 1, Q("3.475 mm")))
sketch3.addConstraint(Sketcher.Constraint("Radius", 5, Q("10.475 mm")))
sketch3.addConstraint(Sketcher.Constraint("DistanceX", 0, 3, 1, 3, Q("7 mm")))
sketch3.addConstraint(Sketcher.Constraint("DistanceX", 4, 3, 5, 3, Q("15.8 mm")))
sketch3.addConstraint(Sketcher.Constraint("DistanceX", 5, 3, 9, 3, Q("69.9 mm")))
sketch3.addConstraint(Sketcher.Constraint("DistanceY", 2, 2, 2, 1, Q("26.4214 mm")))
sketch3.addConstraint(Sketcher.Constraint("DistanceY", 6, 2, -1, 1, Q("66.925 mm")))
sketch3.addConstraint(Sketcher.Constraint("DistanceY", 5, 3, 4, 1, Q("8.3458 mm")))
sketch3.setExpression("Constraints[66]", "Params.sketch3_width")
sketch3.setExpression("Constraints[67]", "Params.sketch3_width2")
sketch3.setExpression("Constraints[68]", "Params.sketch3_height")
pad3 = body.newObject("PartDesign::Pad", "Pad002")
pad3.Profile = sketch3
pad3.setExpression("Length", "Params.pad3_length")

doc.recompute()
